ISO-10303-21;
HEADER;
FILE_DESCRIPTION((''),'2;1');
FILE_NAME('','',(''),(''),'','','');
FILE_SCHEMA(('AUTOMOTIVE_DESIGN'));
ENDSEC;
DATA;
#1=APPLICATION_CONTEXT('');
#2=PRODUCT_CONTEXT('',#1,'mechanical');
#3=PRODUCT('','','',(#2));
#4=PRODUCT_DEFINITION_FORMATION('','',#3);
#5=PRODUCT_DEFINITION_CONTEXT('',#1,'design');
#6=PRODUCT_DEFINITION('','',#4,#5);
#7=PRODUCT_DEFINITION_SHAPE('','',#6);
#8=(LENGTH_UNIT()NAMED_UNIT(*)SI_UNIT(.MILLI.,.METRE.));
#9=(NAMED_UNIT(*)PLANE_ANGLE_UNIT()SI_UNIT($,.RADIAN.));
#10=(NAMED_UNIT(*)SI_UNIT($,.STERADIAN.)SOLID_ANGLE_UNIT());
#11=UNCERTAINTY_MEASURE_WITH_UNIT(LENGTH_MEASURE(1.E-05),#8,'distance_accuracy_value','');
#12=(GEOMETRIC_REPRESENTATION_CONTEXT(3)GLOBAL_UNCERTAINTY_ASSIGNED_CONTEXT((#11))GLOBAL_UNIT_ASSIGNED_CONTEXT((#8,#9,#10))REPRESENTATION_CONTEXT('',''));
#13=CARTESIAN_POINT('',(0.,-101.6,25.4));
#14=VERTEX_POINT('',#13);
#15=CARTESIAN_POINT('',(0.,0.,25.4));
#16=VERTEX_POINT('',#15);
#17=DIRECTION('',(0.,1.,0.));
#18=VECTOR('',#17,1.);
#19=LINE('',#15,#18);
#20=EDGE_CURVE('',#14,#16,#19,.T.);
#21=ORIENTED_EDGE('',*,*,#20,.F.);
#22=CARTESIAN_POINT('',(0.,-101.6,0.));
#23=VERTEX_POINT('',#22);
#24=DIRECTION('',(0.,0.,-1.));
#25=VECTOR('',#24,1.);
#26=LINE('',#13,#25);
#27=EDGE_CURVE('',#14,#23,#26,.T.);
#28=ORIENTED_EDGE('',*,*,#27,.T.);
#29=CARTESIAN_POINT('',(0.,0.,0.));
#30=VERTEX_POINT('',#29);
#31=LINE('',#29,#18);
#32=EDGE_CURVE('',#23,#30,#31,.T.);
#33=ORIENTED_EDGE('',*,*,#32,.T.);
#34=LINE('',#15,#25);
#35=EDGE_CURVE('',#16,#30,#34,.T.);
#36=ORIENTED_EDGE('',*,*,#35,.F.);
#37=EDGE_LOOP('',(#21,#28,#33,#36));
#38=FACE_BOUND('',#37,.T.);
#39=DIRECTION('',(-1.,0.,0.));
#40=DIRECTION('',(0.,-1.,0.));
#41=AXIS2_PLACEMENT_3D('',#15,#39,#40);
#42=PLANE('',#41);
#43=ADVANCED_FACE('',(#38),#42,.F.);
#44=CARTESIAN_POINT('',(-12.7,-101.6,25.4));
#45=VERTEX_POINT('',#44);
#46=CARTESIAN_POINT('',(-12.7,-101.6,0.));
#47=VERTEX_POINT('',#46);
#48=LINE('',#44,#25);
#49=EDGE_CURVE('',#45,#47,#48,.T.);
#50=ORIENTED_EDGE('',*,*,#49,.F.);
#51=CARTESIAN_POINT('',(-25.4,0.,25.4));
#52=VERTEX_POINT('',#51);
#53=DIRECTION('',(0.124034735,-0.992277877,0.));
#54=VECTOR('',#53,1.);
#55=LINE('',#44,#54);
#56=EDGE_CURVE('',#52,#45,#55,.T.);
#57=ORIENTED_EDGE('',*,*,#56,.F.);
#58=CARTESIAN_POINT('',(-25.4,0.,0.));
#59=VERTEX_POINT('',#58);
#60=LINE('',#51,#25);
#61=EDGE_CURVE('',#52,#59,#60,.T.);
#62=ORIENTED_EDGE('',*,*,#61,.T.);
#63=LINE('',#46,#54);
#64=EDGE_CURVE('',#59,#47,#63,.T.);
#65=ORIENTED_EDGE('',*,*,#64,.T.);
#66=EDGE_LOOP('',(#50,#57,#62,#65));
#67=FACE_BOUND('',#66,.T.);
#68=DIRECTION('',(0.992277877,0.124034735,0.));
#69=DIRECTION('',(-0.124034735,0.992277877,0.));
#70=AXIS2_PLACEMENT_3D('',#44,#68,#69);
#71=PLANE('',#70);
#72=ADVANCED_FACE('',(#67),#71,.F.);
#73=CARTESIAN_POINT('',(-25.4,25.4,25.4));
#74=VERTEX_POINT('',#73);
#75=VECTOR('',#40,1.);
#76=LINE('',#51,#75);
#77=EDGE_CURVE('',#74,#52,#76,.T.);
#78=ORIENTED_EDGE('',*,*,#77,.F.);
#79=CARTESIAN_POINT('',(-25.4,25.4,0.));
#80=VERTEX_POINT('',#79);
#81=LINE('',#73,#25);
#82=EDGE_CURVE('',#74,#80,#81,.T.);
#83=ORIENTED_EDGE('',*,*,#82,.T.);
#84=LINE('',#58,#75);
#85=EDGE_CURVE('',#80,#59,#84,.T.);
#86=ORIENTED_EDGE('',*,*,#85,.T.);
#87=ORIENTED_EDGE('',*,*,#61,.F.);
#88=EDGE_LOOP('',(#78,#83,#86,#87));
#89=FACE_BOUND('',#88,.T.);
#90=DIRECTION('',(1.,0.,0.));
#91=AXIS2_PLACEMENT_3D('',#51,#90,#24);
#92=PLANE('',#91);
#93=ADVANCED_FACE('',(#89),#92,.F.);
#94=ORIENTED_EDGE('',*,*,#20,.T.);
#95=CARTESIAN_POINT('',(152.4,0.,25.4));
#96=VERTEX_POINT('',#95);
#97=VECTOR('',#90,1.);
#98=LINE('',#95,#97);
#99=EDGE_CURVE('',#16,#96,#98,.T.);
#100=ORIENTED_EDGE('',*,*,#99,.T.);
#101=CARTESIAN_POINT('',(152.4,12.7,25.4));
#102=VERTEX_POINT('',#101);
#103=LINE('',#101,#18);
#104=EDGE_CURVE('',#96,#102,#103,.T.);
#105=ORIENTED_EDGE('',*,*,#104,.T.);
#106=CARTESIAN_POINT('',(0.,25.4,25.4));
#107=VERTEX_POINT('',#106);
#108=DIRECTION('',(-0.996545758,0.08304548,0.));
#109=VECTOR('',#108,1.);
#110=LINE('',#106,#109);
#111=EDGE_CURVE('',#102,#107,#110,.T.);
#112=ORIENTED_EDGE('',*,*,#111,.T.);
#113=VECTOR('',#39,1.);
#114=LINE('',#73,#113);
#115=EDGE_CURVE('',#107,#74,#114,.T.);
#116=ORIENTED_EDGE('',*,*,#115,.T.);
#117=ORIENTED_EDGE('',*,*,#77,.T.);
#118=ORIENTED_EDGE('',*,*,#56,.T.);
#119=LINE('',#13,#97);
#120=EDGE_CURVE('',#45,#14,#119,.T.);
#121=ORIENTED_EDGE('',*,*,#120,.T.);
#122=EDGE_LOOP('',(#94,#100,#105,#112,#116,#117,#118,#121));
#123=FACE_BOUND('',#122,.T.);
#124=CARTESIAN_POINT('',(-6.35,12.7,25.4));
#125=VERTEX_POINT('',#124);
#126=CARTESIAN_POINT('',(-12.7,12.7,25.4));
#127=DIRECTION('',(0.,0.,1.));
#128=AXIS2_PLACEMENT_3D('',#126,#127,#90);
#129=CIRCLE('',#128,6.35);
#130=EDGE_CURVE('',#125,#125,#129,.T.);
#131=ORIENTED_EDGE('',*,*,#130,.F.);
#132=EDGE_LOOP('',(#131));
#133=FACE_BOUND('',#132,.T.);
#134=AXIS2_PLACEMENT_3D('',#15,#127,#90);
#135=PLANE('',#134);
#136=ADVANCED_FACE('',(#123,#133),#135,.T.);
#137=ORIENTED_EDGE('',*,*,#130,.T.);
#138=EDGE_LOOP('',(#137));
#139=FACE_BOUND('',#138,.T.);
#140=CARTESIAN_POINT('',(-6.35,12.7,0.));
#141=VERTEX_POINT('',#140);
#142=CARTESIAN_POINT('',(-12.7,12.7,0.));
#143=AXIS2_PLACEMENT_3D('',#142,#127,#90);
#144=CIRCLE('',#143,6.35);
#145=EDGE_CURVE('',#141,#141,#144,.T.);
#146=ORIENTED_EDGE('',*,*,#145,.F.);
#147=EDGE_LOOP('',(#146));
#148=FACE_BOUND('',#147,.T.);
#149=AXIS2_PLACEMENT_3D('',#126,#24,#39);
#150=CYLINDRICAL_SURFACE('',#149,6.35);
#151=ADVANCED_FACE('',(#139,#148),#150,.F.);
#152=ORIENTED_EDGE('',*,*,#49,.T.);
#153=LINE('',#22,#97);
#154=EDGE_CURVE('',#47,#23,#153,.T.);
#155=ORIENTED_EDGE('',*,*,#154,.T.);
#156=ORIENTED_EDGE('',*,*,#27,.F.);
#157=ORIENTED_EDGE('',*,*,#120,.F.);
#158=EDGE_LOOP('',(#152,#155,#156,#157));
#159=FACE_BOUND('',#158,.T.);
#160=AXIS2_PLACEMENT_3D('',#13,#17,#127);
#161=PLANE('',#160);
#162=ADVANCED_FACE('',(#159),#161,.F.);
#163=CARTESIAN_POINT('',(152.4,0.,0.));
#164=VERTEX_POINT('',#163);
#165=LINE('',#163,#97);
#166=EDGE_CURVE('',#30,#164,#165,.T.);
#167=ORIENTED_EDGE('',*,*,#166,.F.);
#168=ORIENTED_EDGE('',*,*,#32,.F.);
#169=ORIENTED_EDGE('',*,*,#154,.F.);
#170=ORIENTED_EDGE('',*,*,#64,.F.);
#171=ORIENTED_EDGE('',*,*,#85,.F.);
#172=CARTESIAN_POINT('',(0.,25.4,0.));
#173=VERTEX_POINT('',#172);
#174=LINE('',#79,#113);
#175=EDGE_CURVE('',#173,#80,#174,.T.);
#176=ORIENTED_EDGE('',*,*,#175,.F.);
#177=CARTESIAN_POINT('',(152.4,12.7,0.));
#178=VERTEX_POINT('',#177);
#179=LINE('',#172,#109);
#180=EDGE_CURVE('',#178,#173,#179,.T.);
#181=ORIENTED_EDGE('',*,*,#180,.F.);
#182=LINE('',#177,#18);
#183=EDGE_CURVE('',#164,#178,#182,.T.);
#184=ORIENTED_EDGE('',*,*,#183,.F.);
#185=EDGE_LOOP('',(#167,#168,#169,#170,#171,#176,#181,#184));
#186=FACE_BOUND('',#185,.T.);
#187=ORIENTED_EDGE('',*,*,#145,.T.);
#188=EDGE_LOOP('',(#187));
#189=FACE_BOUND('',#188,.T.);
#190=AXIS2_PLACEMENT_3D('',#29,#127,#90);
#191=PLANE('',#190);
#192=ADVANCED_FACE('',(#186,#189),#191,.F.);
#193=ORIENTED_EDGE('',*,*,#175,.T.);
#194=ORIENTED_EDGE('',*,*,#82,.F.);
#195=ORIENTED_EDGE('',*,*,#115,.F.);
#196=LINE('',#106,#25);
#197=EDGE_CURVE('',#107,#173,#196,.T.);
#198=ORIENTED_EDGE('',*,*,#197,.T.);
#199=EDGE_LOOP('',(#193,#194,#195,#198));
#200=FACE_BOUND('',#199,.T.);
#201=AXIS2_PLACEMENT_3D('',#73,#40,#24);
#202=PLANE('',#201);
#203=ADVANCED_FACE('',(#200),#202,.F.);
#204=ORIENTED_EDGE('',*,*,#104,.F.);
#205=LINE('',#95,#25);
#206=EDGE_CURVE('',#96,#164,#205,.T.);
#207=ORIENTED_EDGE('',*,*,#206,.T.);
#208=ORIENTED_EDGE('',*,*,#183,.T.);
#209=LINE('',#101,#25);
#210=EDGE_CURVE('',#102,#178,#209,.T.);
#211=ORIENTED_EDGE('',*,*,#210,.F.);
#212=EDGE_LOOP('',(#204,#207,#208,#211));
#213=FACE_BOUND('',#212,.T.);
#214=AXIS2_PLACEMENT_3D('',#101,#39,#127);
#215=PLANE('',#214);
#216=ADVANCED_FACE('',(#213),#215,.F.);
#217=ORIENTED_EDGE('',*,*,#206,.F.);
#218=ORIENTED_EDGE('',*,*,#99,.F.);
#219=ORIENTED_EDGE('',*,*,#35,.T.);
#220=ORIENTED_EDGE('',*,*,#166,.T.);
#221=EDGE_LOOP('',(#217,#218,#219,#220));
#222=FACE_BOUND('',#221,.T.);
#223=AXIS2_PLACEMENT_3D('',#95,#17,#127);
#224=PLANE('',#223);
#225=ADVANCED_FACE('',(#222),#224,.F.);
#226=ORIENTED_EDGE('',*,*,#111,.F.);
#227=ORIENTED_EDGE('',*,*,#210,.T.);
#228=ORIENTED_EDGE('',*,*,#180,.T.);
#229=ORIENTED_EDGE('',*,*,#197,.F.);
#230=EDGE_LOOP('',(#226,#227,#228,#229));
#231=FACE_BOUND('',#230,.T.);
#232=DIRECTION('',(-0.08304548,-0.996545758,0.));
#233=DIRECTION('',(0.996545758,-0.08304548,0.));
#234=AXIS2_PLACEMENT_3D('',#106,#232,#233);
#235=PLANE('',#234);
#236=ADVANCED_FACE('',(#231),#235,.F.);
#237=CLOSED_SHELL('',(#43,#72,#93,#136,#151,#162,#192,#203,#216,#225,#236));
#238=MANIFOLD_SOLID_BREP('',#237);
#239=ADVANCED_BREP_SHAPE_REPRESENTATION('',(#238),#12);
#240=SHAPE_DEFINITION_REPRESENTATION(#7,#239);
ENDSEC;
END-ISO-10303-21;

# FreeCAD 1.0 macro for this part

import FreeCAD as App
import Part
import Sketcher
from FreeCAD import Vector
Q = App.Units.Quantity


def add_polygon(sketch, points):
    """Adds a closed chain of lines whose ends are joined by coincident constraints."""
    first, n = sketch.GeometryCount, len(points)
    for a, b in zip(points, points[1:] + points[:1]):
        sketch.addGeometry(Part.LineSegment(App.Vector(*a, 0), App.Vector(*b, 0)), False)
    for i in range(n):
        sketch.addConstraint(Sketcher.Constraint("Coincident", first + i, 2, first + (i + 1) % n, 1))

doc = App.newDocument("Part")
body = doc.addObject("PartDesign::Body", "Body")

# Sketch on XY plane
sketch1 = body.newObject("Sketcher::SketchObject", "Sketch")
sketch1.AttachmentSupport = (doc.getObject("XY_Plane"), [""])
sketch1.MapMode = "FlatFace"
add_polygon(sketch1, [(0, -102), (0, 0), (152, 0), (152, 13), (0, 25), (-25, 25), (-25, 0), (-13, -102)])  # lines 0-7
sketch1.addGeometry(Part.Circle(Vector(-13, 13, 0), Vector(0, 0, 1), 6), False)  # 8
sketch1.addConstraint([
    Sketcher.Constraint("Vertical", 0),
    Sketcher.Constraint("Horizontal", 1),
    Sketcher.Constraint("Vertical", 2),
    Sketcher.Constraint("Horizontal", 4),
    Sketcher.Constraint("Vertical", 5),
    Sketcher.Constraint("Horizontal", 7),
    Sketcher.Constraint("Coincident", 0, 2, -1, 1),
    Sketcher.Constraint("PointOnObject", 3, 2, -2),
    Sketcher.Constraint("PointOnObject", 5, 2, -1),
    Sketcher.Constraint("Horizontal", 8, 3, 2, 2),
    Sketcher.Constraint("Vertical", 8, 3, 6, 2),
    Sketcher.Constraint("Equal", 7, 2),
    Sketcher.Constraint("Equal", 4, 5),
    Sketcher.Constraint("Diameter", 8, Q("0.5 in")),
    Sketcher.Constraint("DistanceX", 1, 1, 1, 2, Q("6 in")),
    Sketcher.Constraint("DistanceX", 4, 2, 4, 1, Q("1 in")),
    Sketcher.Constraint("DistanceY", 0, 1, 0, 2, Q("4 in")),
    Sketcher.Constraint("DistanceX", 7, 1, 7, 2, Q("0.5 in")),
])
pad1 = body.newObject("PartDesign::Pad", "Pad")
pad1.Profile = sketch1
pad1.Length = Q("1 in")

doc.recompute()
